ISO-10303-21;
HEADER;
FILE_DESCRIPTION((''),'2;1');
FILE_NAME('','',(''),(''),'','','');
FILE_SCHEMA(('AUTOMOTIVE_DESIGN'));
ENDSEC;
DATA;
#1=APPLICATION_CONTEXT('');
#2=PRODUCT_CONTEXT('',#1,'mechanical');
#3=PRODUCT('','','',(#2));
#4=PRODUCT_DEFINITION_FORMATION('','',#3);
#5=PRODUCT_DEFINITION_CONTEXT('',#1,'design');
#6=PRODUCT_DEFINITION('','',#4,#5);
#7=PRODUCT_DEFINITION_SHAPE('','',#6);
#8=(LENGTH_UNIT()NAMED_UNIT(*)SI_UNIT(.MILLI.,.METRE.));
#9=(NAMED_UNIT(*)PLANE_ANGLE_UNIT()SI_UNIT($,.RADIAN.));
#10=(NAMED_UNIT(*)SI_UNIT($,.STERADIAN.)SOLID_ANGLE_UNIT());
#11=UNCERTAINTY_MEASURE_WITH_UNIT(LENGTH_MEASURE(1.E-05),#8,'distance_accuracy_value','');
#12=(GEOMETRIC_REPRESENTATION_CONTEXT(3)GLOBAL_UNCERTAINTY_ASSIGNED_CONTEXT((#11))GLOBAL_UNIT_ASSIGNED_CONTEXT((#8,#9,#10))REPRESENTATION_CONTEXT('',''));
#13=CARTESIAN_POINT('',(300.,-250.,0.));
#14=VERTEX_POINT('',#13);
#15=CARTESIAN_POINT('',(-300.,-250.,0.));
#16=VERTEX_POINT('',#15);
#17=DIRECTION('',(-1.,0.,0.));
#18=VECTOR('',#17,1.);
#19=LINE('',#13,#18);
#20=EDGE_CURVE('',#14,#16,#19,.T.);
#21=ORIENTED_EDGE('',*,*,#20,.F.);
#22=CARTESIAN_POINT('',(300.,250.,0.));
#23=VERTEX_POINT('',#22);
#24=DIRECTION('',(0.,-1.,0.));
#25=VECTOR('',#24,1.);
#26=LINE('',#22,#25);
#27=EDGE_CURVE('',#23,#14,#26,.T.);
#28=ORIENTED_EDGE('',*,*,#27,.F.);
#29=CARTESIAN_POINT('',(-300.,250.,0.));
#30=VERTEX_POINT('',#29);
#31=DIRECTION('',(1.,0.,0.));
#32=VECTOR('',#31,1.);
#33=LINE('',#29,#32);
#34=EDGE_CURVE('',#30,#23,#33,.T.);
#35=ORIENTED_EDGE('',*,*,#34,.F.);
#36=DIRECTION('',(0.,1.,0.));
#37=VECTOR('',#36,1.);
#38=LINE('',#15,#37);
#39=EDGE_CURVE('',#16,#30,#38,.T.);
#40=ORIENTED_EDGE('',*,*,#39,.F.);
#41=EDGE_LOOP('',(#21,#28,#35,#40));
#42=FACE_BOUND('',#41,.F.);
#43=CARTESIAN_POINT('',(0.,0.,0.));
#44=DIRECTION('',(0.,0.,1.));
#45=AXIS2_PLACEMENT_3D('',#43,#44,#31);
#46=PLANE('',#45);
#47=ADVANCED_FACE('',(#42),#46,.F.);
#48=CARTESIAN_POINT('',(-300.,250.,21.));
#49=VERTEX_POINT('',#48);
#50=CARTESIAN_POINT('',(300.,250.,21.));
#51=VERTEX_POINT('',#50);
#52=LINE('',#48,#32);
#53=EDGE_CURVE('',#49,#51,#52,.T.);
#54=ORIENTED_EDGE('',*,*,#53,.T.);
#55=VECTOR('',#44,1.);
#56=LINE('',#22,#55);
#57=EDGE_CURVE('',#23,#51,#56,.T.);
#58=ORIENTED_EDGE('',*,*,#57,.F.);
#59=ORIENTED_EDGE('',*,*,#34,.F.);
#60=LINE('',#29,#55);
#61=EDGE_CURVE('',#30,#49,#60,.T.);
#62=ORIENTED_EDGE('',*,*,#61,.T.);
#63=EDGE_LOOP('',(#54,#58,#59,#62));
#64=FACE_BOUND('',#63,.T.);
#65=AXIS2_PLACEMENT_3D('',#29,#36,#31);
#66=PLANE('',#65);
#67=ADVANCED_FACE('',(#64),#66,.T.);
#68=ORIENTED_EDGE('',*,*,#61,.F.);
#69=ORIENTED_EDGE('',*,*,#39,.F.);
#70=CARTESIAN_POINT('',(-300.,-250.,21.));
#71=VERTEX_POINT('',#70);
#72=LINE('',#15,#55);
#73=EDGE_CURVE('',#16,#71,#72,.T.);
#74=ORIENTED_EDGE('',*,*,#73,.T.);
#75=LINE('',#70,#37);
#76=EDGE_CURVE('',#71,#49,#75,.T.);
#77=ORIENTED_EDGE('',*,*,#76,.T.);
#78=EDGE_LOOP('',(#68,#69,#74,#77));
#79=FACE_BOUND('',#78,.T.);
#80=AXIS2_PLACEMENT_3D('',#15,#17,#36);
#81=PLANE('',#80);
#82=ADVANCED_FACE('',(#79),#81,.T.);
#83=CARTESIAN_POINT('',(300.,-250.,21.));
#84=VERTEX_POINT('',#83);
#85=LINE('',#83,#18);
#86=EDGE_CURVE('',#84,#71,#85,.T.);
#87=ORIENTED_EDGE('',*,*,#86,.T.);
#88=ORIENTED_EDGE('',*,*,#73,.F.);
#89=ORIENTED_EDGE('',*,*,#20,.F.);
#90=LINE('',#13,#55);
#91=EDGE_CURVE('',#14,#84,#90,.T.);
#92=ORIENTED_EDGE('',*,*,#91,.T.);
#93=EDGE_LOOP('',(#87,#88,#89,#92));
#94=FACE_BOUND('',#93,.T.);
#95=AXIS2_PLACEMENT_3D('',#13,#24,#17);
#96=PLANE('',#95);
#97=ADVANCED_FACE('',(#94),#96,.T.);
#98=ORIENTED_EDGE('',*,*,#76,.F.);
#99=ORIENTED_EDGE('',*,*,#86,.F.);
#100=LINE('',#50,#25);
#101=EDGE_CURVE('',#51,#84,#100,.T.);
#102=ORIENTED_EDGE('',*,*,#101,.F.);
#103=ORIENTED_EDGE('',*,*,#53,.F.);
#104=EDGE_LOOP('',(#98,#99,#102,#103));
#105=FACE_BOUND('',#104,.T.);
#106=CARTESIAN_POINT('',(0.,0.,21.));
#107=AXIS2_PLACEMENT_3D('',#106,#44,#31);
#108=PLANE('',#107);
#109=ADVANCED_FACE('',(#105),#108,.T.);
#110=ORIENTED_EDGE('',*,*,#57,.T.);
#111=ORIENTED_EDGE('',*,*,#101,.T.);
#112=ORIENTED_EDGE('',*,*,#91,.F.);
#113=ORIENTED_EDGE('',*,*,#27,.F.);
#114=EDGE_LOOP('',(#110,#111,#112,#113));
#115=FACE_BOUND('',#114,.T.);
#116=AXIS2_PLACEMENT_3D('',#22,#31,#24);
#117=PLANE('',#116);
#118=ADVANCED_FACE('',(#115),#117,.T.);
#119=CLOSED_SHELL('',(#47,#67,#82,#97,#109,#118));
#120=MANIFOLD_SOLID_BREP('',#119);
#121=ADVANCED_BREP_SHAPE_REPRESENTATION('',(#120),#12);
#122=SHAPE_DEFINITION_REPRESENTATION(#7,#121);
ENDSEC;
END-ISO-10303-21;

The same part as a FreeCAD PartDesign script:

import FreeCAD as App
import Part
import Sketcher
from FreeCAD import Vector
Q = App.Units.Quantity

doc = App.newDocument("Part")
body = doc.addObject("PartDesign::Body", "Body")

# Sketch on XY plane
sketch1 = body.newObject("Sketcher::SketchObject", "Sketch")
sketch1.AttachmentSupport = (doc.getObject("XY_Plane"), [""])
sketch1.MapMode = "FlatFace"
sketch1.addGeometry(Part.LineSegment(Vector(-300, -250, 0), Vector(300, -250, 0)), False)
sketch1.addGeometry(Part.LineSegment(Vector(300, -250, 0), Vector(300, 250, 0)), False)
sketch1.addGeometry(Part.LineSegment(Vector(300, 250, 0), Vector(-300, 250, 0)), False)
sketch1.addGeometry(Part.LineSegment(Vector(-300, 250, 0), Vector(-300, -250, 0)), False)
sketch1.addConstraint(Sketcher.Constraint("Coincident", 0, 2, 1, 1))
sketch1.addConstraint(Sketcher.Constraint("Coincident", 1, 2, 2, 1))
sketch1.addConstraint(Sketcher.Constraint("Coincident", 2, 2, 3, 1))
sketch1.addConstraint(Sketcher.Constraint("Coincident", 3, 2, 0, 1))
sketch1.addConstraint(Sketcher.Constraint("Horizontal", 0))
sketch1.addConstraint(Sketcher.Constraint("Vertical", 1))
sketch1.addConstraint(Sketcher.Constraint("Horizontal", 2))
sketch1.addConstraint(Sketcher.Constraint("Vertical", 3))
sketch1.addConstraint(Sketcher.Constraint("Symmetric", 0, 2, 2, 2, -1, 1))
sketch1.addConstraint(Sketcher.Constraint("DistanceX", 0, 1, 0, 2, Q("600 mm")))
sketch1.addConstraint(Sketcher.Constraint("DistanceY", 1, 1, 1, 2, Q("500 mm")))
pad1 = body.newObject("PartDesign::Pad", "Pad")
pad1.Profile = sketch1
pad1.Length = 21

doc.recompute()
